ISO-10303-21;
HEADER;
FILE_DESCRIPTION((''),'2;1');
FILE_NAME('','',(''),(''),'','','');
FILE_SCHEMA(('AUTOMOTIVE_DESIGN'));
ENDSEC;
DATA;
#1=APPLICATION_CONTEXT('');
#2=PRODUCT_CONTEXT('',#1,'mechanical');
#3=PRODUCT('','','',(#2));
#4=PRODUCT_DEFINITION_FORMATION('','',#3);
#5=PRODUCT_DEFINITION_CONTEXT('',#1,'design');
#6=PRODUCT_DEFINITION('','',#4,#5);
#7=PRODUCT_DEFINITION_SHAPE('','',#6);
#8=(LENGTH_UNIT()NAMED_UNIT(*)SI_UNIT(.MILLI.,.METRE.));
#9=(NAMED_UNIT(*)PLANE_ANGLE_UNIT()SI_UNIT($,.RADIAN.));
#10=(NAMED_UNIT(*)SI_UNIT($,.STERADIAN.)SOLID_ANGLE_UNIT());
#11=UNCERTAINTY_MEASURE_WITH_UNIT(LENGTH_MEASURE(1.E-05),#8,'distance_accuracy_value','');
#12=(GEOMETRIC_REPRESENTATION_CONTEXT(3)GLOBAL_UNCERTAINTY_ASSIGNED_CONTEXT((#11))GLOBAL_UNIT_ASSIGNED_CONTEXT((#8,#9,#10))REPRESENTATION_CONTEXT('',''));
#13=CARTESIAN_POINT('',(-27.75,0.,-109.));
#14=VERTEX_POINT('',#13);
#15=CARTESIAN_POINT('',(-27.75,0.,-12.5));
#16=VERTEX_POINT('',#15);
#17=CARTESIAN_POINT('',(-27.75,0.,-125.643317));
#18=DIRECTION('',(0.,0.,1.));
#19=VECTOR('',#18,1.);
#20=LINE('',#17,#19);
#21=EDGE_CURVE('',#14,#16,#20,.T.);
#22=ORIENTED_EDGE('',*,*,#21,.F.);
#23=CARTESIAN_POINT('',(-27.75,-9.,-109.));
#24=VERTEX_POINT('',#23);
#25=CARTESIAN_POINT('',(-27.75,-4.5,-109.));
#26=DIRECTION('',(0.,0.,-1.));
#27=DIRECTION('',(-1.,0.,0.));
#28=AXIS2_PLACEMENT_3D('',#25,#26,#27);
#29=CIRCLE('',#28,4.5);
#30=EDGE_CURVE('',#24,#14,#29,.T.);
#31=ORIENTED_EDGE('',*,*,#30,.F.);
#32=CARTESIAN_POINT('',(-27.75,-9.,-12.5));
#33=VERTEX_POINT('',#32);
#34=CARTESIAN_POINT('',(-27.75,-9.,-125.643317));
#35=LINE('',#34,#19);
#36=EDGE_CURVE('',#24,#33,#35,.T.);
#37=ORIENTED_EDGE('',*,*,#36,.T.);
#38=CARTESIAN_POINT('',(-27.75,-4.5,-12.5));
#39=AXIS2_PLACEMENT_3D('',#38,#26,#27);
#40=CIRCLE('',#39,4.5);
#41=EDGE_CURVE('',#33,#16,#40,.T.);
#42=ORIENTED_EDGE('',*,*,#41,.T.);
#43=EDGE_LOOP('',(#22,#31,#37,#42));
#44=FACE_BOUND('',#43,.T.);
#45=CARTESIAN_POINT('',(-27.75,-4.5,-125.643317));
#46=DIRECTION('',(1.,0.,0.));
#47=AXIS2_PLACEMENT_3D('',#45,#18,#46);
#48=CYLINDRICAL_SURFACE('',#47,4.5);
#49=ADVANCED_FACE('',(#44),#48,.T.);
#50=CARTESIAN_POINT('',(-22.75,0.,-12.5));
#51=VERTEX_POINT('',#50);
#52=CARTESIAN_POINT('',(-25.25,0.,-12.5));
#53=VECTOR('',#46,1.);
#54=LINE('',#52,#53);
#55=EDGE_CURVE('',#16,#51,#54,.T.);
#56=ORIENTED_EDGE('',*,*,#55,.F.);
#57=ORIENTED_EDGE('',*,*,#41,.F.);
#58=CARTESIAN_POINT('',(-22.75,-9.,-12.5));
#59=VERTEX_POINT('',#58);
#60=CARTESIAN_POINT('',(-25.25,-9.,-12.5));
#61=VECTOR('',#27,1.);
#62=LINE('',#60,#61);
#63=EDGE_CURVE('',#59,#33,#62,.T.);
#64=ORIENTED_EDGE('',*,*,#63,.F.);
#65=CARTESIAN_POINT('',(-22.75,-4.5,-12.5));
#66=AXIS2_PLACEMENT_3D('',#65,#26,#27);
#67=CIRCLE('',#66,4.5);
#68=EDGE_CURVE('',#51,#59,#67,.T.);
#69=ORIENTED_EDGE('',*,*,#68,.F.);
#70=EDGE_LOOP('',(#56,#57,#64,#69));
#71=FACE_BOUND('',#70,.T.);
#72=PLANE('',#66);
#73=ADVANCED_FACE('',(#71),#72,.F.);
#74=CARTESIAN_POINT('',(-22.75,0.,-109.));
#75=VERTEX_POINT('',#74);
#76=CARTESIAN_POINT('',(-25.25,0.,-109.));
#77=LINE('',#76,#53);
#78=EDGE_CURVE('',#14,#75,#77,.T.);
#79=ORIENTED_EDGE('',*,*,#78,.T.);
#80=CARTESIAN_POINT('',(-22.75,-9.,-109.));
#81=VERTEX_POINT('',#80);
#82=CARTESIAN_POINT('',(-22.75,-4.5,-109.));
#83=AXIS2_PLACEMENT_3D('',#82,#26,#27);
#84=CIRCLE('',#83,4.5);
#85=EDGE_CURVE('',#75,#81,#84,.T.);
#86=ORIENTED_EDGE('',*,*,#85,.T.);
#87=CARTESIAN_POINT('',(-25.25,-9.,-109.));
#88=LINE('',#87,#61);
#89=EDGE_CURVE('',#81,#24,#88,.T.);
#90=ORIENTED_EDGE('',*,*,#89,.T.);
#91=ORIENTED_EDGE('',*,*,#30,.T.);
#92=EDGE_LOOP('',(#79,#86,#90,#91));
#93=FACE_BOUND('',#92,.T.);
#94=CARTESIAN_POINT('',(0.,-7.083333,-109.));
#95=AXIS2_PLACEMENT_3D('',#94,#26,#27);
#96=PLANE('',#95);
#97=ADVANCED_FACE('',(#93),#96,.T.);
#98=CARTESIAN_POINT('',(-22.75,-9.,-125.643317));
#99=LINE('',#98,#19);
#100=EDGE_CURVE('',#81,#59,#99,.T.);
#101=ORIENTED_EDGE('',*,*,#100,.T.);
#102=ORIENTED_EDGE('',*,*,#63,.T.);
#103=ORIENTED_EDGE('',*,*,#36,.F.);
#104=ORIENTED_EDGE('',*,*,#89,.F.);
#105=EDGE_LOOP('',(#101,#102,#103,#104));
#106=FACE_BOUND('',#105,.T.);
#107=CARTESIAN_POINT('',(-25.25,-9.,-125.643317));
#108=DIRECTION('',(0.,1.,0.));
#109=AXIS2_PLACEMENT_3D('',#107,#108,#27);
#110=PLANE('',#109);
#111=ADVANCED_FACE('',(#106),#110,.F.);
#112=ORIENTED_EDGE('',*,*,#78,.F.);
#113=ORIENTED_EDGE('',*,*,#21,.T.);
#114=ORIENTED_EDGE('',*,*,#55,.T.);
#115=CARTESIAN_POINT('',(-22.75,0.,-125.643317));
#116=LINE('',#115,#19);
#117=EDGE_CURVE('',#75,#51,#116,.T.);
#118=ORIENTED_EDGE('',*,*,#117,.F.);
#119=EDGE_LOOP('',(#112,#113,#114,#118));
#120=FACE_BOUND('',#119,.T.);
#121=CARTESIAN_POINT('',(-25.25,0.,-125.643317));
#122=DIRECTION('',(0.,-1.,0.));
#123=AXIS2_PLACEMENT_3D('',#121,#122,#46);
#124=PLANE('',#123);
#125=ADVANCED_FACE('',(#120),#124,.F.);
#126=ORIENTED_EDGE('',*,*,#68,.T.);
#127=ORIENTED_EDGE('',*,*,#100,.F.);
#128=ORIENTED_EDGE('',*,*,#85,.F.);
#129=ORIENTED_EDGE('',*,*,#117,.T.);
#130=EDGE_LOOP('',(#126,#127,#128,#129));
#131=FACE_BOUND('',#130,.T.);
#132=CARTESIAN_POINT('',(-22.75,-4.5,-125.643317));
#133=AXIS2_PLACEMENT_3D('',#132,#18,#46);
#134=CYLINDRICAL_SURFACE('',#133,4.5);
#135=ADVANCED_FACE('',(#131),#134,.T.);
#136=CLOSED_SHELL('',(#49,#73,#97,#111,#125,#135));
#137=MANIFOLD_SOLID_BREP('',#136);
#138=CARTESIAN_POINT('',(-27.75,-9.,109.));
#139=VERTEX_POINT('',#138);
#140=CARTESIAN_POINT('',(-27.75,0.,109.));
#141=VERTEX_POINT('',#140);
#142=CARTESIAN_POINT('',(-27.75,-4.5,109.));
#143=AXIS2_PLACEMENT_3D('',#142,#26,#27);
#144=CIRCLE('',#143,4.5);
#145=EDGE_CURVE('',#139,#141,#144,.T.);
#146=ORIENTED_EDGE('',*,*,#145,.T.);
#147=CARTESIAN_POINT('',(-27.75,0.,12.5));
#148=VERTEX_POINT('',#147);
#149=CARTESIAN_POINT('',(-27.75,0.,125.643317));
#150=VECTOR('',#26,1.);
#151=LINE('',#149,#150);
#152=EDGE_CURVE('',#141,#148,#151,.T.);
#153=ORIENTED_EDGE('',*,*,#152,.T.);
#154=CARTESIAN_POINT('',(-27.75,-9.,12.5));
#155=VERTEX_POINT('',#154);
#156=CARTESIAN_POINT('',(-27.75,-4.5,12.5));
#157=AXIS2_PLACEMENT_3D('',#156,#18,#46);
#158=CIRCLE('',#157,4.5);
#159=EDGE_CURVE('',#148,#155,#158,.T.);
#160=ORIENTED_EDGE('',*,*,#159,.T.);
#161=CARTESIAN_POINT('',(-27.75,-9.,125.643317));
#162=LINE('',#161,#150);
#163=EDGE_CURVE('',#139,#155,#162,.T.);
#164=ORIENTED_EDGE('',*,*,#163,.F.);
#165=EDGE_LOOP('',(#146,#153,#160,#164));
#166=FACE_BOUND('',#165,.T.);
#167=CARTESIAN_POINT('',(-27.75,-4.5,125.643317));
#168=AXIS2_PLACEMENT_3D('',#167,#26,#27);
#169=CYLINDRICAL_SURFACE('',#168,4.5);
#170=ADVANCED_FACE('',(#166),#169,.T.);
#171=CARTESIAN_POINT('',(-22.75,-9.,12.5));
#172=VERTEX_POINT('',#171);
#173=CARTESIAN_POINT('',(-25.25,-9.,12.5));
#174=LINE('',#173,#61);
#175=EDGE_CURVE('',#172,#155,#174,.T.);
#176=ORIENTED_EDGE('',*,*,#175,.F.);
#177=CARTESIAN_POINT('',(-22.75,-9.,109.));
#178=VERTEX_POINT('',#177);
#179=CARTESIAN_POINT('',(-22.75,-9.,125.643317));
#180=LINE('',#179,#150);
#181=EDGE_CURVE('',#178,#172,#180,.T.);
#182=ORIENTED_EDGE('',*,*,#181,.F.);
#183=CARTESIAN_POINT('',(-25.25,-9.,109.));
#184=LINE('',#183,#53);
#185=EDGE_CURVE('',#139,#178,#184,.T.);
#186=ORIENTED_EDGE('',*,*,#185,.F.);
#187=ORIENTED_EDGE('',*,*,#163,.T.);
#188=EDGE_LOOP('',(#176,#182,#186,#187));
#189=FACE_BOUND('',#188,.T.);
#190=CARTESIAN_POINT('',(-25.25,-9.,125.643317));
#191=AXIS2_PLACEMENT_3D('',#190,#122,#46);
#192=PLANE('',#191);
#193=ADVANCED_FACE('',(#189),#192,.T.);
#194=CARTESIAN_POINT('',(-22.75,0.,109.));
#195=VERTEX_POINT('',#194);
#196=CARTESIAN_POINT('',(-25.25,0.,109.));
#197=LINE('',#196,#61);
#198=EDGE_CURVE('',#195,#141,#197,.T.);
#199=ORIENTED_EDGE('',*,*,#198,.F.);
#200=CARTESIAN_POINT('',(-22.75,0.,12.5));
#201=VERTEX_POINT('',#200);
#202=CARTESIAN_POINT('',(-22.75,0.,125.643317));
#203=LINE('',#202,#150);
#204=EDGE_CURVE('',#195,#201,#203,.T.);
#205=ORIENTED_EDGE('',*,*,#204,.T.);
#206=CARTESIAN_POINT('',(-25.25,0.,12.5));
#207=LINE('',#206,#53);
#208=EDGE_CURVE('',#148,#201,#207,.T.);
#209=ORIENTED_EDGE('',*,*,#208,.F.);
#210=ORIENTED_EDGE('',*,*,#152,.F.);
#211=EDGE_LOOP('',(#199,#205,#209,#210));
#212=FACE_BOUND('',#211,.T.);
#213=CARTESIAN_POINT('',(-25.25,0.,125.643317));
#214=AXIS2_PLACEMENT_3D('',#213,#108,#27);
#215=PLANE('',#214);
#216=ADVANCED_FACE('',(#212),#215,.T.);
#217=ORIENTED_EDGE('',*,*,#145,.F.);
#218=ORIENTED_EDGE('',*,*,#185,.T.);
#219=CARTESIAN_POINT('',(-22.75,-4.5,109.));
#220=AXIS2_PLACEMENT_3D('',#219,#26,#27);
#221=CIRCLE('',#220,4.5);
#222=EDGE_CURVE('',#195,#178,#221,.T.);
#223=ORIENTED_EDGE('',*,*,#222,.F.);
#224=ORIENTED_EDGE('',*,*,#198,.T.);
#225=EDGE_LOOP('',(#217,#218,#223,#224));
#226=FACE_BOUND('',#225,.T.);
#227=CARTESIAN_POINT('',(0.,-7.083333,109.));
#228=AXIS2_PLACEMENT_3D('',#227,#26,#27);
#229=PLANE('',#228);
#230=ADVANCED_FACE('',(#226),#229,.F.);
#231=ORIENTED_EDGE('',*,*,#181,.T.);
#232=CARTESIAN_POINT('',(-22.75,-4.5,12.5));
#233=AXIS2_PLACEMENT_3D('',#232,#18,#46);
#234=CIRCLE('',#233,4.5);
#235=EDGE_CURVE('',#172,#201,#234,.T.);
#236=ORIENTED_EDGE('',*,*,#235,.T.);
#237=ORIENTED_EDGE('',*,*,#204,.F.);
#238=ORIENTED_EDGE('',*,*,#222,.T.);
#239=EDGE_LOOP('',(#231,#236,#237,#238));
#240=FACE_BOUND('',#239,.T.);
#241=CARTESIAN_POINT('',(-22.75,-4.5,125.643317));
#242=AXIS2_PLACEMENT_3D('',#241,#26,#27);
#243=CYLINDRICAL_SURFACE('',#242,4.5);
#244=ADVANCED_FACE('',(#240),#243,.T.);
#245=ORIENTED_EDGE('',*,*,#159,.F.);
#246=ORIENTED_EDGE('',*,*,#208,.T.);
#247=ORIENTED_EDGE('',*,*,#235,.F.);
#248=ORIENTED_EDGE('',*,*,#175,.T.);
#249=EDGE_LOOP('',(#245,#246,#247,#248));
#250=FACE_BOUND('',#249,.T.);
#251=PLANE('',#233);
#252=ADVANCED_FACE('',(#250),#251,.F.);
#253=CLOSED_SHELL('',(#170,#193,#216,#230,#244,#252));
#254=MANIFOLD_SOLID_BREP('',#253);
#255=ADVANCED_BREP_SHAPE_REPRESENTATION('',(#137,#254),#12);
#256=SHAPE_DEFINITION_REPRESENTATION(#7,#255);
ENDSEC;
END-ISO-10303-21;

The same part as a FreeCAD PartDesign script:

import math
import FreeCAD as App
import Part
import Sketcher

V = App.Vector

doc = App.newDocument("Part")
body = doc.addObject("PartDesign::Body", "Body")

# Sketch on XY plane
sketch1 = body.newObject("Sketcher::SketchObject", "Sketch")
sketch1.AttachmentSupport = (doc.getObject("XY_Plane"), [""])
sketch1.MapMode = "FlatFace"
sketch1.AttachmentOffset = App.Placement(V(0, 0, -12.5), App.Rotation())
sketch1.addGeometry([
    Part.LineSegment(V(-22.75, 0, 0), V(-27.75, 0, 0)),
    Part.ArcOfCircle(Part.Circle(V(-27.75, -4.5, 0), V(0, 0, 1), 4.5), math.radians(90), math.radians(270)),
    Part.LineSegment(V(-27.75, -9, 0), V(-22.75, -9, 0)),
    Part.ArcOfCircle(Part.Circle(V(-22.75, -4.5, 0), V(0, 0, 1), 4.5), math.radians(-90), math.radians(90)),
], False)
sketch1.addConstraint([
    Sketcher.Constraint("Tangent", 0, 2, 1, 1),
    Sketcher.Constraint("Tangent", 1, 2, 2, 1),
    Sketcher.Constraint("Tangent", 2, 2, 3, 1),
    Sketcher.Constraint("Tangent", 3, 2, 0, 1),
    Sketcher.Constraint("Horizontal", 0),
    Sketcher.Constraint("Horizontal", 2),
    Sketcher.Constraint("PointOnObject", 0, 2, -1),
    Sketcher.Constraint("Radius", 1, 4.5),
    Sketcher.Constraint("DistanceX", 0, 2, 0, 1, 5.0),
    Sketcher.Constraint("DistanceX", 1, 3, -1, 1, 27.75),
])
pad1 = body.newObject("PartDesign::Pad", "Pad")
pad1.Profile = sketch1
pad1.Length = 96.5
pad1.Reversed = True
body2 = doc.addObject("PartDesign::Body", "Body001")

# Sketch on XY plane
sketch2 = body2.newObject("Sketcher::SketchObject", "Sketch001")
sketch2.AttachmentSupport = (doc.getObject("XY_Plane001"), [""])
sketch2.MapMode = "FlatFace"
sketch2.AttachmentOffset = App.Placement(V(0, 0, 12.5), App.Rotation())
sketch2.addGeometry([
    Part.LineSegment(V(-22.75, 0, 0), V(-27.75, 0, 0)),
    Part.ArcOfCircle(Part.Circle(V(-27.75, -4.5, 0), V(0, 0, 1), 4.5), math.radians(90), math.radians(270)),
    Part.LineSegment(V(-27.75, -9, 0), V(-22.75, -9, 0)),
    Part.ArcOfCircle(Part.Circle(V(-22.75, -4.5, 0), V(0, 0, 1), 4.5), math.radians(-90), math.radians(90)),
], False)
sketch2.addConstraint([
    Sketcher.Constraint("Tangent", 0, 2, 1, 1),
    Sketcher.Constraint("Tangent", 1, 2, 2, 1),
    Sketcher.Constraint("Tangent", 2, 2, 3, 1),
    Sketcher.Constraint("Tangent", 3, 2, 0, 1),
    Sketcher.Constraint("Horizontal", 0),
    Sketcher.Constraint("Horizontal", 2),
    Sketcher.Constraint("PointOnObject", 0, 2, -1),
    Sketcher.Constraint("Radius", 1, 4.5),
    Sketcher.Constraint("DistanceX", 0, 2, 0, 1, 5.0),
    Sketcher.Constraint("DistanceX", 1, 3, -1, 1, 27.75),
])
pad2 = body2.newObject("PartDesign::Pad", "Pad001")
pad2.Profile = sketch2
pad2.Length = 96.5

doc.recompute()
